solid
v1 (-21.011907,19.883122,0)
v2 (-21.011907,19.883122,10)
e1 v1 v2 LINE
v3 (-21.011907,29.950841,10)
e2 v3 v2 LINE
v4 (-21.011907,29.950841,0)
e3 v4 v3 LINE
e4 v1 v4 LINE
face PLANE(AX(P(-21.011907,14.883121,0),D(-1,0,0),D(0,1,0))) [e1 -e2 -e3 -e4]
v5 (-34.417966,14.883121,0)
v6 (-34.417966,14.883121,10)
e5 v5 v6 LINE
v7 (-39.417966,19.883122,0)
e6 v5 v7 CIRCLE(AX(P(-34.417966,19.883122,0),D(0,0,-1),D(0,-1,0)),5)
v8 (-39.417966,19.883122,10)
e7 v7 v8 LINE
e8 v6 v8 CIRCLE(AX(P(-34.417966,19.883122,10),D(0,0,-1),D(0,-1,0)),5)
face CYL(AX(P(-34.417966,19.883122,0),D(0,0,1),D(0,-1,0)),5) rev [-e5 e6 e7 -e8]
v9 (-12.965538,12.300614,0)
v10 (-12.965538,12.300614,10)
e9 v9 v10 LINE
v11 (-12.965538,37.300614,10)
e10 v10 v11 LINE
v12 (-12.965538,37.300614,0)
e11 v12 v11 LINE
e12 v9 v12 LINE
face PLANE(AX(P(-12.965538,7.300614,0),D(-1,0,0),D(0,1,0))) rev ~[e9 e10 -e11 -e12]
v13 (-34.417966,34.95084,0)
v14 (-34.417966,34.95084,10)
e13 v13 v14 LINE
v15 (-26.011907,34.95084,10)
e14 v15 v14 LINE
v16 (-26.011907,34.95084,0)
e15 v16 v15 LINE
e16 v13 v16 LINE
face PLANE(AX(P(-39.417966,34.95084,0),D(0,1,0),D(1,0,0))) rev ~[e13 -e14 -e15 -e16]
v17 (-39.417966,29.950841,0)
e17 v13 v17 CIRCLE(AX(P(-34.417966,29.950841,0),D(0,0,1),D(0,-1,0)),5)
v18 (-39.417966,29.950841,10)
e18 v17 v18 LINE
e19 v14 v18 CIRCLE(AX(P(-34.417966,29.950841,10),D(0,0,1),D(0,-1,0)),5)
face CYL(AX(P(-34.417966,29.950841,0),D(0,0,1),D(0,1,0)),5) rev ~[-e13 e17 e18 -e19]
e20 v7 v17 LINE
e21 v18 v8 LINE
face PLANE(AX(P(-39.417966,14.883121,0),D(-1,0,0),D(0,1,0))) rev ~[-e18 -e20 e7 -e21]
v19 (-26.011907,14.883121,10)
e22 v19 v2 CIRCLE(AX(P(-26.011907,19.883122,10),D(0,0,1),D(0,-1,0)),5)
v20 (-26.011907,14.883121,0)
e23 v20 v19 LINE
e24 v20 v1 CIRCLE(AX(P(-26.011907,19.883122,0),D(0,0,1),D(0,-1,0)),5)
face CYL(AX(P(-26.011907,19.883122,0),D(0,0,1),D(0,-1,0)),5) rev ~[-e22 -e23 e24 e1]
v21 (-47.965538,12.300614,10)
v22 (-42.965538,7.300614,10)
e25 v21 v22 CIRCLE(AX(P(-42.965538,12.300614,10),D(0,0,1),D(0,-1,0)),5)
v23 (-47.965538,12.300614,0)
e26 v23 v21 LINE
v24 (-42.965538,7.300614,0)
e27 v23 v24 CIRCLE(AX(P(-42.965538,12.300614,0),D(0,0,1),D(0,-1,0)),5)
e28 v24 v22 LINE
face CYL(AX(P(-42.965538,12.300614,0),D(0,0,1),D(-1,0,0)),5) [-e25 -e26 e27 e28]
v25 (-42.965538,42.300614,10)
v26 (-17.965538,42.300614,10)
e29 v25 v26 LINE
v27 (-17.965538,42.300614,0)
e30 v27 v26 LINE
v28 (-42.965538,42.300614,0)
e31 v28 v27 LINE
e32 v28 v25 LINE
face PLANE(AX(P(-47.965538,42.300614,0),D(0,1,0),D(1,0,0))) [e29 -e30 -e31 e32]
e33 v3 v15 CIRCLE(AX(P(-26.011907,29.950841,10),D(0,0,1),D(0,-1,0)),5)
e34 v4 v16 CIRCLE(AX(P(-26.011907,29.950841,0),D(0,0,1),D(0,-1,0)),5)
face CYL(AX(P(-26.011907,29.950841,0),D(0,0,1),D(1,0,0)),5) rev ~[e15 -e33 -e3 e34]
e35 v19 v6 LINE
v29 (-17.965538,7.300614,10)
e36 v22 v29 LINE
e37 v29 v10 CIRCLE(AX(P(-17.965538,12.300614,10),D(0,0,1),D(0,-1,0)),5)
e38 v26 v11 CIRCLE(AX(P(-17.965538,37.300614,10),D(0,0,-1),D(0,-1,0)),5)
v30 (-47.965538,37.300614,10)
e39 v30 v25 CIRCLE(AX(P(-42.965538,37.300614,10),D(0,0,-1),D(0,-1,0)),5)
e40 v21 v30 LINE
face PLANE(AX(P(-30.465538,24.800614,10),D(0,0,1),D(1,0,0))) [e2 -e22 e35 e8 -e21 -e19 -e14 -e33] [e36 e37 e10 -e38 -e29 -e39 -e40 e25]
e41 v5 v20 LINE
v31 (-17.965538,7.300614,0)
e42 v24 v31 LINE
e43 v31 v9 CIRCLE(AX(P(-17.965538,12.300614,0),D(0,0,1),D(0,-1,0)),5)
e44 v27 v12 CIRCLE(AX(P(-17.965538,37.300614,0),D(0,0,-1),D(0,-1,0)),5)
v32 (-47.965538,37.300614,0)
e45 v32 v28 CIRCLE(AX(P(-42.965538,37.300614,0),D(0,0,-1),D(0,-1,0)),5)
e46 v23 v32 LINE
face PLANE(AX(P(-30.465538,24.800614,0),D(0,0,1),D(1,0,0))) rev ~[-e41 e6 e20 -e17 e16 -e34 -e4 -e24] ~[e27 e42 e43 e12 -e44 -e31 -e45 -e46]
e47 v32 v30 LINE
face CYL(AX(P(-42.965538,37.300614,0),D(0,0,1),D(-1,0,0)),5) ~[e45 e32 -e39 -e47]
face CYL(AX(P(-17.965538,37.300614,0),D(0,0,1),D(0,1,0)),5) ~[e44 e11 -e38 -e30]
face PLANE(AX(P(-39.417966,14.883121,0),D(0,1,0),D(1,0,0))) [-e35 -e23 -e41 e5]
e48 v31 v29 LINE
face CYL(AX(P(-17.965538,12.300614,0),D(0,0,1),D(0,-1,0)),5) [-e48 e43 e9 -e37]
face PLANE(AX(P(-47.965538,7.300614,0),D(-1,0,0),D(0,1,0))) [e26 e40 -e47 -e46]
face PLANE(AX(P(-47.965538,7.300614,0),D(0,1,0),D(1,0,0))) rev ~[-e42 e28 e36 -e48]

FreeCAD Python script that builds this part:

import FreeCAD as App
import Part
import Sketcher
Q = App.Units.Quantity


def edges_at(feature, points):
    """Names of the edges that pass closest to the given points."""
    edges = feature.Shape.Edges
    near = lambda p: min(range(len(edges)), key=lambda i: edges[i].distToShape(Part.Vertex(*p))[0])
    return sorted({f"Edge{near(p) + 1}" for p in points})

doc = App.newDocument("Part")
body = doc.addObject("PartDesign::Body", "Body")

# Sketch on XY plane
sketch1 = body.newObject("Sketcher::SketchObject", "Sketch")
sketch1.AttachmentSupport = (doc.getObject("XY_Plane"), [""])
sketch1.MapMode = "FlatFace"
sketch1.addGeometry([
    Part.LineSegment(App.Vector(-48, 42, 0), App.Vector(-48, 7, 0)),
    Part.LineSegment(App.Vector(-48, 7, 0), App.Vector(-13, 7, 0)),
    Part.LineSegment(App.Vector(-13, 7, 0), App.Vector(-13, 42, 0)),
    Part.LineSegment(App.Vector(-13, 42, 0), App.Vector(-48, 42, 0)),
], False)
sketch1.addConstraint([
    Sketcher.Constraint("Coincident", 0, 2, 1, 1),
    Sketcher.Constraint("Coincident", 1, 2, 2, 1),
    Sketcher.Constraint("Coincident", 2, 2, 3, 1),
    Sketcher.Constraint("Coincident", 3, 2, 0, 1),
    Sketcher.Constraint("Vertical", 0),
    Sketcher.Constraint("Horizontal", 1),
    Sketcher.Constraint("Vertical", 2),
    Sketcher.Constraint("Horizontal", 3),
    Sketcher.Constraint("Equal", 3, 0),
    Sketcher.Constraint("DistanceX", 1, 1, 1, 2, Q("35 mm")),
    Sketcher.Constraint("DistanceX", 0, 2, -1, 1, Q("47.965538 mm")),
    Sketcher.Constraint("DistanceY", -1, 1, 0, 2, Q("7.300614 mm")),
])
pad1 = body.newObject("PartDesign::Pad", "Pad")
pad1.Profile = sketch1
pad1.Length = 10

# Sketch on XY plane
sketch2 = body.newObject("Sketcher::SketchObject", "Sketch001")
sketch2.AttachmentSupport = (doc.getObject("XY_Plane"), [""])
sketch2.MapMode = "FlatFace"
sketch2.addGeometry([
    Part.LineSegment(App.Vector(-39, 35, 0), App.Vector(-39, 15, 0)),
    Part.LineSegment(App.Vector(-39, 15, 0), App.Vector(-21, 15, 0)),
    Part.LineSegment(App.Vector(-21, 15, 0), App.Vector(-21, 35, 0)),
    Part.LineSegment(App.Vector(-21, 35, 0), App.Vector(-39, 35, 0)),
], False)
sketch2.addConstraint([
    Sketcher.Constraint("Coincident", 0, 2, 1, 1),
    Sketcher.Constraint("Coincident", 1, 2, 2, 1),
    Sketcher.Constraint("Coincident", 2, 2, 3, 1),
    Sketcher.Constraint("Coincident", 3, 2, 0, 1),
    Sketcher.Constraint("Vertical", 0),
    Sketcher.Constraint("Horizontal", 1),
    Sketcher.Constraint("Vertical", 2),
    Sketcher.Constraint("Horizontal", 3),
    Sketcher.Constraint("DistanceX", 1, 1, 1, 2, Q("18.406059 mm")),
    Sketcher.Constraint("DistanceY", 0, 2, 0, 1, Q("20.067719 mm")),
    Sketcher.Constraint("DistanceY", -1, 1, 0, 2, Q("14.883121 mm")),
    Sketcher.Constraint("DistanceX", 0, 2, -1, 1, Q("39.417966 mm")),
])
pocket1 = body.newObject("PartDesign::Pocket", "Pocket")
pocket1.Profile = sketch2
pocket1.Length = 25
pocket1.Reversed = True
doc.recompute()

fillet = body.newObject("PartDesign::Fillet", "Fillet")
fillet.Base = (pocket1, edges_at(pocket1, [
    (-12.966, 42.301, 5),
    (-47.966, 42.301, 5),
    (-47.966, 7.301, 5),
    (-12.966, 7.301, 5),
    (-21.012, 14.883, 5),
    (-39.418, 14.883, 5),
    (-39.418, 34.951, 5),
    (-21.012, 34.951, 5),
]))
fillet.Radius = 5

doc.recompute()
